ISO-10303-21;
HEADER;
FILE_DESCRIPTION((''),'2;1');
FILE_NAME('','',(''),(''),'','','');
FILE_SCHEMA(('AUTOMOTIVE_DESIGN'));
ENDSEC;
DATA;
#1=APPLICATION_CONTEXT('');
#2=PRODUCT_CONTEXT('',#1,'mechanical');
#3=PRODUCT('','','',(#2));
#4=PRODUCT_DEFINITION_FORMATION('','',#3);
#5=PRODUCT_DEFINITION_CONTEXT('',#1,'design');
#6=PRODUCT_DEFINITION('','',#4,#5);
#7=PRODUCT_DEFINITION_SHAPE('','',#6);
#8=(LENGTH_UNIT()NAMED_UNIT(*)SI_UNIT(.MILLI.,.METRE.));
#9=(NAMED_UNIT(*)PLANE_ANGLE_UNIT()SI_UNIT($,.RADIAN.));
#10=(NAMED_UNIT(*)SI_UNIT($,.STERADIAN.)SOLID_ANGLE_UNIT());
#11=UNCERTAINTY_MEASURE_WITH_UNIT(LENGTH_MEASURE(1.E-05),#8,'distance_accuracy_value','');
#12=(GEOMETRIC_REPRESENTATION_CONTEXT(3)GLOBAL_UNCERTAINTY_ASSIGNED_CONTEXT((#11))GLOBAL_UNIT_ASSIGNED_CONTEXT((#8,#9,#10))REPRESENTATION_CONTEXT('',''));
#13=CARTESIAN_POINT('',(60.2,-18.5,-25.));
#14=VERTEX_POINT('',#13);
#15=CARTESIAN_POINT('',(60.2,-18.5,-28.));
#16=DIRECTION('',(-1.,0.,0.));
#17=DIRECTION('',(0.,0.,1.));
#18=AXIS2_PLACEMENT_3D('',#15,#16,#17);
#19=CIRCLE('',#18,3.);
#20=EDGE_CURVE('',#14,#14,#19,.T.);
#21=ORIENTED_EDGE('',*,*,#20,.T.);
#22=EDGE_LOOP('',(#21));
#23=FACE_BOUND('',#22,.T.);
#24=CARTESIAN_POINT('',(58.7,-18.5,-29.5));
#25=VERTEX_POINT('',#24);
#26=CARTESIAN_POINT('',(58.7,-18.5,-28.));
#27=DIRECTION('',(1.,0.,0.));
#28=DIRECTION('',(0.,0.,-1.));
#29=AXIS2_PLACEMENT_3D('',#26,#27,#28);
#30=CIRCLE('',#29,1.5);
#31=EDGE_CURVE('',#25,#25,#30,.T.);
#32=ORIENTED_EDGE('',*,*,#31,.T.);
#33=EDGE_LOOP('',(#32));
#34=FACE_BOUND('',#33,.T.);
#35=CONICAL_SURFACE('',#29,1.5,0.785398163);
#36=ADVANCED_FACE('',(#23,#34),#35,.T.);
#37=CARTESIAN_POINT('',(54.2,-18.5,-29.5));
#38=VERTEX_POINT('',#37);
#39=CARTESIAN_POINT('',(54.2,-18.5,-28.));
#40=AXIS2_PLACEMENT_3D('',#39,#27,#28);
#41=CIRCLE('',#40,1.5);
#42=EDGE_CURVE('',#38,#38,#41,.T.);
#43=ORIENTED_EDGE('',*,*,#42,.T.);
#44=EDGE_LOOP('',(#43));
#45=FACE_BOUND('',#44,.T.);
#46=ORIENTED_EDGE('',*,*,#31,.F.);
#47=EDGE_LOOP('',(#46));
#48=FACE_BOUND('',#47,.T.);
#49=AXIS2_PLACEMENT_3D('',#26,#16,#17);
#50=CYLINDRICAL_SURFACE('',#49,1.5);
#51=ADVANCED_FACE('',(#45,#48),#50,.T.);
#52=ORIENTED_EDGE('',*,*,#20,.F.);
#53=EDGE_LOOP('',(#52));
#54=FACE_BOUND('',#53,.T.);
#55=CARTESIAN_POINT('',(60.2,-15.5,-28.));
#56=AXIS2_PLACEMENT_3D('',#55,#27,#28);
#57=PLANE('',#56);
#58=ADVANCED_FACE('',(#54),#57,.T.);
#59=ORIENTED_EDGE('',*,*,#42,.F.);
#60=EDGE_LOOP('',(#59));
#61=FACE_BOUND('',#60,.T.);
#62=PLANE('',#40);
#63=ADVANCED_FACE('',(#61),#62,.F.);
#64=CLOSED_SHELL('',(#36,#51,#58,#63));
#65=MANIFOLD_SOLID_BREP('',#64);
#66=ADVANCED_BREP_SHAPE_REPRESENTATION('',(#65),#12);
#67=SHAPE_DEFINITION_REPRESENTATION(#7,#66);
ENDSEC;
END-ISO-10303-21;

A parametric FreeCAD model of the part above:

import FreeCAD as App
import Part
import Sketcher

V = App.Vector
Q = App.Units.Quantity

doc = App.newDocument("Part")
body = doc.addObject("PartDesign::Body", "Body")

# Sketch on YZ plane
sketch1 = body.newObject("Sketcher::SketchObject", "Sketch")
sketch1.AttachmentSupport = (doc.getObject("YZ_Plane"), [""])
sketch1.MapMode = "FlatFace"
sketch1.AttachmentOffset = App.Placement(V(0, 0, 54.2), App.Rotation())
sketch1.addGeometry(Part.Circle(V(-18.5, -28, 0), V(0, 0, 1), 1.5), False)
sketch1.addConstraint([
    Sketcher.Constraint("Diameter", 0, Q("3 mm")),
    Sketcher.Constraint("DistanceY", 0, 3, -1, 1, Q("28 mm")),
    Sketcher.Constraint("DistanceX", 0, 3, -1, 1, Q("18.5 mm")),
])
pad1 = body.newObject("PartDesign::Pad", "Pad")
pad1.Profile = sketch1
pad1.Length = 4.5

# Sketch on XY plane
sketch2 = body.newObject("Sketcher::SketchObject", "Sketch001")
sketch2.AttachmentSupport = (doc.getObject("XY_Plane"), [""])
sketch2.MapMode = "FlatFace"
sketch2.AttachmentOffset = App.Placement(V(0, 0, -28), App.Rotation())
sketch2.addGeometry([
    Part.LineSegment(V(58.7, -18.5, 0), V(58.7, -17, 0)),
    Part.LineSegment(V(58.7, -17, 0), V(60.2, -15.5, 0)),
    Part.LineSegment(V(60.2, -15.5, 0), V(60.2, -18.5, 0)),
    Part.LineSegment(V(60.2, -18.5, 0), V(58.7, -18.5, 0)),
], False)
sketch2.addGeometry(Part.LineSegment(V(58.7, -18.5, 0), V(60.2, -18.5, 0)), True)  # axis
sketch2.addConstraint([
    Sketcher.Constraint("Coincident", 0, 2, 1, 1),
    Sketcher.Constraint("Coincident", 1, 2, 2, 1),
    Sketcher.Constraint("Coincident", 2, 2, 3, 1),
    Sketcher.Constraint("Coincident", 3, 2, 0, 1),
    Sketcher.Constraint("Vertical", 0),
    Sketcher.Constraint("Vertical", 2),
    Sketcher.Constraint("Horizontal", 3),
    Sketcher.Constraint("Horizontal", 4),
    Sketcher.Constraint("Coincident", 4, 1, 3, 2),
    Sketcher.Constraint("Vertical", 1, 2, 4, 2),
    Sketcher.Constraint("Equal", 4, 0),
    Sketcher.Constraint("DistanceY", 2, 2, 2, 1, Q("3 mm")),
    Sketcher.Constraint("Angle", 1, Q("45 deg")),
    Sketcher.Constraint("DistanceY", 0, 2, -1, 1, Q("17 mm")),
    Sketcher.Constraint("DistanceX", -1, 1, 0, 2, Q("58.7 mm")),
])
revolution = body.newObject("PartDesign::Revolution", "Revolution")
revolution.Profile = sketch2
revolution.ReferenceAxis = (sketch2, ["Axis0"])
revolution.Angle = 360

doc.recompute()
